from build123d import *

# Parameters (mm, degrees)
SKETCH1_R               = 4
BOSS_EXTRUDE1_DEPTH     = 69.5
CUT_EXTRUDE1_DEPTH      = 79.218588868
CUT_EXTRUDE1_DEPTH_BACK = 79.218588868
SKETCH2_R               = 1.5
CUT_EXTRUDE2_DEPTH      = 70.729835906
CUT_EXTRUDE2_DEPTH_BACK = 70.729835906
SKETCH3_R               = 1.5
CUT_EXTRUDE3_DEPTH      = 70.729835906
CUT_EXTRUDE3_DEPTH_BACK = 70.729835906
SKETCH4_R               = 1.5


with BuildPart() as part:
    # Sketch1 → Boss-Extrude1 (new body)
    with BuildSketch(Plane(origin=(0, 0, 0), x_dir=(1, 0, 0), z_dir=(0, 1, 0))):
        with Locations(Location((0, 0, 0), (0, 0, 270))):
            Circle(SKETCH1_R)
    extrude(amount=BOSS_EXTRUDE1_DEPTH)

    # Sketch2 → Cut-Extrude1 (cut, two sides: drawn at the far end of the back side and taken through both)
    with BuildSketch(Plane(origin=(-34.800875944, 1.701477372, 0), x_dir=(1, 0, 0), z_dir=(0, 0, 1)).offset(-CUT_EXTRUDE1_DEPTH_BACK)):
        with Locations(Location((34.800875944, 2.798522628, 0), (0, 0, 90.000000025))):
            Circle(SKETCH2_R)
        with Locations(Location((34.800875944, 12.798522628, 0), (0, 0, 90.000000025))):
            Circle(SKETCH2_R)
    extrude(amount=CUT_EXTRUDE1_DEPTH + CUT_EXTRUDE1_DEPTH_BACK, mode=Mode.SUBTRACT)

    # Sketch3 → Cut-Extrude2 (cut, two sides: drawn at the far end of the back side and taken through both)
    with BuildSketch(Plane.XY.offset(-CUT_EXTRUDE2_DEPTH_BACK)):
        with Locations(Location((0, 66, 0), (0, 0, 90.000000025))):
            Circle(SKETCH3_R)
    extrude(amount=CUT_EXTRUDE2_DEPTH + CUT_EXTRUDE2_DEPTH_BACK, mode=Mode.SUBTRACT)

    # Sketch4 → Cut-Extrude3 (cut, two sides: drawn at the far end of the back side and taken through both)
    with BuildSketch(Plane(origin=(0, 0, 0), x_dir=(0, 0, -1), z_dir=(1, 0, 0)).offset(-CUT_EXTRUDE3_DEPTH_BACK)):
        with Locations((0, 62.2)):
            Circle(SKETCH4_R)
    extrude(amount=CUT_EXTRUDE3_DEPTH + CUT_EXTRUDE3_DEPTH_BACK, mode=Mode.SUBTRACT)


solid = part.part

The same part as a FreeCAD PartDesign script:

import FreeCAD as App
import Part
import Sketcher

V = App.Vector

doc = App.newDocument("Part")
body = doc.addObject("PartDesign::Body", "Body")

# Sketch on XZ plane
sketch1 = body.newObject("Sketcher::SketchObject", "Sketch")
sketch1.AttachmentSupport = (doc.getObject("XZ_Plane"), [""])
sketch1.MapMode = "FlatFace"
sketch1.addGeometry(Part.Circle(V(0, 0, 0), V(0, 0, 1), 4), False)
sketch1.addConstraint([
    Sketcher.Constraint("Coincident", 0, 3, -1, 1),
    Sketcher.Constraint("Diameter", 0, 8.0),
])
pad1 = body.newObject("PartDesign::Pad", "Pad")
pad1.Profile = sketch1
pad1.Length = 69.5
pad1.Reversed = True

# Sketch on XY plane
sketch2 = body.newObject("Sketcher::SketchObject", "Sketch001")
sketch2.AttachmentSupport = (doc.getObject("XY_Plane"), [""])
sketch2.MapMode = "FlatFace"
sketch2.addGeometry([
    Part.Circle(V(0, 4.5, 0), V(0, 0, 1), 1.5),
    Part.Circle(V(0, 14.5, 0), V(0, 0, 1), 1.5),
], False)
sketch2.addConstraint([
    Sketcher.Constraint("Equal", 0, 1),
    Sketcher.Constraint("PointOnObject", 0, 3, -2),
    Sketcher.Constraint("PointOnObject", 1, 3, -2),
    Sketcher.Constraint("Diameter", 0, 3.0),
    Sketcher.Constraint("DistanceY", 0, 3, 1, 3, 10.0),
    Sketcher.Constraint("DistanceY", -1, 1, 0, 3, 4.5),
])
pocket1 = body.newObject("PartDesign::Pocket", "Pocket")
pocket1.Profile = sketch2
pocket1.Type = "ThroughAll"
pocket1.Midplane = True

# Sketch on XY plane
sketch3 = body.newObject("Sketcher::SketchObject", "Sketch002")
sketch3.AttachmentSupport = (doc.getObject("XY_Plane"), [""])
sketch3.MapMode = "FlatFace"
sketch3.addGeometry(Part.Circle(V(0, 66, 0), V(0, 0, 1), 1.5), False)
sketch3.addConstraint([
    Sketcher.Constraint("PointOnObject", 0, 3, -2),
    Sketcher.Constraint("Diameter", 0, 3.0),
    Sketcher.Constraint("DistanceY", -1, 1, 0, 3, 66.0),
])
pocket2 = body.newObject("PartDesign::Pocket", "Pocket001")
pocket2.Profile = sketch3
pocket2.Type = "ThroughAll"
pocket2.Midplane = True

# Sketch on YZ plane
sketch4 = body.newObject("Sketcher::SketchObject", "Sketch003")
sketch4.AttachmentSupport = (doc.getObject("YZ_Plane"), [""])
sketch4.MapMode = "FlatFace"
sketch4.addGeometry(Part.Circle(V(62.2, 0, 0), V(0, 0, 1), 1.5), False)
sketch4.addConstraint([
    Sketcher.Constraint("PointOnObject", 0, 3, -1),
    Sketcher.Constraint("Diameter", 0, 3.0),
    Sketcher.Constraint("DistanceX", -1, 1, 0, 3, 62.2),
])
pocket3 = body.newObject("PartDesign::Pocket", "Pocket002")
pocket3.Profile = sketch4
pocket3.Type = "ThroughAll"
pocket3.Midplane = True

doc.recompute()
